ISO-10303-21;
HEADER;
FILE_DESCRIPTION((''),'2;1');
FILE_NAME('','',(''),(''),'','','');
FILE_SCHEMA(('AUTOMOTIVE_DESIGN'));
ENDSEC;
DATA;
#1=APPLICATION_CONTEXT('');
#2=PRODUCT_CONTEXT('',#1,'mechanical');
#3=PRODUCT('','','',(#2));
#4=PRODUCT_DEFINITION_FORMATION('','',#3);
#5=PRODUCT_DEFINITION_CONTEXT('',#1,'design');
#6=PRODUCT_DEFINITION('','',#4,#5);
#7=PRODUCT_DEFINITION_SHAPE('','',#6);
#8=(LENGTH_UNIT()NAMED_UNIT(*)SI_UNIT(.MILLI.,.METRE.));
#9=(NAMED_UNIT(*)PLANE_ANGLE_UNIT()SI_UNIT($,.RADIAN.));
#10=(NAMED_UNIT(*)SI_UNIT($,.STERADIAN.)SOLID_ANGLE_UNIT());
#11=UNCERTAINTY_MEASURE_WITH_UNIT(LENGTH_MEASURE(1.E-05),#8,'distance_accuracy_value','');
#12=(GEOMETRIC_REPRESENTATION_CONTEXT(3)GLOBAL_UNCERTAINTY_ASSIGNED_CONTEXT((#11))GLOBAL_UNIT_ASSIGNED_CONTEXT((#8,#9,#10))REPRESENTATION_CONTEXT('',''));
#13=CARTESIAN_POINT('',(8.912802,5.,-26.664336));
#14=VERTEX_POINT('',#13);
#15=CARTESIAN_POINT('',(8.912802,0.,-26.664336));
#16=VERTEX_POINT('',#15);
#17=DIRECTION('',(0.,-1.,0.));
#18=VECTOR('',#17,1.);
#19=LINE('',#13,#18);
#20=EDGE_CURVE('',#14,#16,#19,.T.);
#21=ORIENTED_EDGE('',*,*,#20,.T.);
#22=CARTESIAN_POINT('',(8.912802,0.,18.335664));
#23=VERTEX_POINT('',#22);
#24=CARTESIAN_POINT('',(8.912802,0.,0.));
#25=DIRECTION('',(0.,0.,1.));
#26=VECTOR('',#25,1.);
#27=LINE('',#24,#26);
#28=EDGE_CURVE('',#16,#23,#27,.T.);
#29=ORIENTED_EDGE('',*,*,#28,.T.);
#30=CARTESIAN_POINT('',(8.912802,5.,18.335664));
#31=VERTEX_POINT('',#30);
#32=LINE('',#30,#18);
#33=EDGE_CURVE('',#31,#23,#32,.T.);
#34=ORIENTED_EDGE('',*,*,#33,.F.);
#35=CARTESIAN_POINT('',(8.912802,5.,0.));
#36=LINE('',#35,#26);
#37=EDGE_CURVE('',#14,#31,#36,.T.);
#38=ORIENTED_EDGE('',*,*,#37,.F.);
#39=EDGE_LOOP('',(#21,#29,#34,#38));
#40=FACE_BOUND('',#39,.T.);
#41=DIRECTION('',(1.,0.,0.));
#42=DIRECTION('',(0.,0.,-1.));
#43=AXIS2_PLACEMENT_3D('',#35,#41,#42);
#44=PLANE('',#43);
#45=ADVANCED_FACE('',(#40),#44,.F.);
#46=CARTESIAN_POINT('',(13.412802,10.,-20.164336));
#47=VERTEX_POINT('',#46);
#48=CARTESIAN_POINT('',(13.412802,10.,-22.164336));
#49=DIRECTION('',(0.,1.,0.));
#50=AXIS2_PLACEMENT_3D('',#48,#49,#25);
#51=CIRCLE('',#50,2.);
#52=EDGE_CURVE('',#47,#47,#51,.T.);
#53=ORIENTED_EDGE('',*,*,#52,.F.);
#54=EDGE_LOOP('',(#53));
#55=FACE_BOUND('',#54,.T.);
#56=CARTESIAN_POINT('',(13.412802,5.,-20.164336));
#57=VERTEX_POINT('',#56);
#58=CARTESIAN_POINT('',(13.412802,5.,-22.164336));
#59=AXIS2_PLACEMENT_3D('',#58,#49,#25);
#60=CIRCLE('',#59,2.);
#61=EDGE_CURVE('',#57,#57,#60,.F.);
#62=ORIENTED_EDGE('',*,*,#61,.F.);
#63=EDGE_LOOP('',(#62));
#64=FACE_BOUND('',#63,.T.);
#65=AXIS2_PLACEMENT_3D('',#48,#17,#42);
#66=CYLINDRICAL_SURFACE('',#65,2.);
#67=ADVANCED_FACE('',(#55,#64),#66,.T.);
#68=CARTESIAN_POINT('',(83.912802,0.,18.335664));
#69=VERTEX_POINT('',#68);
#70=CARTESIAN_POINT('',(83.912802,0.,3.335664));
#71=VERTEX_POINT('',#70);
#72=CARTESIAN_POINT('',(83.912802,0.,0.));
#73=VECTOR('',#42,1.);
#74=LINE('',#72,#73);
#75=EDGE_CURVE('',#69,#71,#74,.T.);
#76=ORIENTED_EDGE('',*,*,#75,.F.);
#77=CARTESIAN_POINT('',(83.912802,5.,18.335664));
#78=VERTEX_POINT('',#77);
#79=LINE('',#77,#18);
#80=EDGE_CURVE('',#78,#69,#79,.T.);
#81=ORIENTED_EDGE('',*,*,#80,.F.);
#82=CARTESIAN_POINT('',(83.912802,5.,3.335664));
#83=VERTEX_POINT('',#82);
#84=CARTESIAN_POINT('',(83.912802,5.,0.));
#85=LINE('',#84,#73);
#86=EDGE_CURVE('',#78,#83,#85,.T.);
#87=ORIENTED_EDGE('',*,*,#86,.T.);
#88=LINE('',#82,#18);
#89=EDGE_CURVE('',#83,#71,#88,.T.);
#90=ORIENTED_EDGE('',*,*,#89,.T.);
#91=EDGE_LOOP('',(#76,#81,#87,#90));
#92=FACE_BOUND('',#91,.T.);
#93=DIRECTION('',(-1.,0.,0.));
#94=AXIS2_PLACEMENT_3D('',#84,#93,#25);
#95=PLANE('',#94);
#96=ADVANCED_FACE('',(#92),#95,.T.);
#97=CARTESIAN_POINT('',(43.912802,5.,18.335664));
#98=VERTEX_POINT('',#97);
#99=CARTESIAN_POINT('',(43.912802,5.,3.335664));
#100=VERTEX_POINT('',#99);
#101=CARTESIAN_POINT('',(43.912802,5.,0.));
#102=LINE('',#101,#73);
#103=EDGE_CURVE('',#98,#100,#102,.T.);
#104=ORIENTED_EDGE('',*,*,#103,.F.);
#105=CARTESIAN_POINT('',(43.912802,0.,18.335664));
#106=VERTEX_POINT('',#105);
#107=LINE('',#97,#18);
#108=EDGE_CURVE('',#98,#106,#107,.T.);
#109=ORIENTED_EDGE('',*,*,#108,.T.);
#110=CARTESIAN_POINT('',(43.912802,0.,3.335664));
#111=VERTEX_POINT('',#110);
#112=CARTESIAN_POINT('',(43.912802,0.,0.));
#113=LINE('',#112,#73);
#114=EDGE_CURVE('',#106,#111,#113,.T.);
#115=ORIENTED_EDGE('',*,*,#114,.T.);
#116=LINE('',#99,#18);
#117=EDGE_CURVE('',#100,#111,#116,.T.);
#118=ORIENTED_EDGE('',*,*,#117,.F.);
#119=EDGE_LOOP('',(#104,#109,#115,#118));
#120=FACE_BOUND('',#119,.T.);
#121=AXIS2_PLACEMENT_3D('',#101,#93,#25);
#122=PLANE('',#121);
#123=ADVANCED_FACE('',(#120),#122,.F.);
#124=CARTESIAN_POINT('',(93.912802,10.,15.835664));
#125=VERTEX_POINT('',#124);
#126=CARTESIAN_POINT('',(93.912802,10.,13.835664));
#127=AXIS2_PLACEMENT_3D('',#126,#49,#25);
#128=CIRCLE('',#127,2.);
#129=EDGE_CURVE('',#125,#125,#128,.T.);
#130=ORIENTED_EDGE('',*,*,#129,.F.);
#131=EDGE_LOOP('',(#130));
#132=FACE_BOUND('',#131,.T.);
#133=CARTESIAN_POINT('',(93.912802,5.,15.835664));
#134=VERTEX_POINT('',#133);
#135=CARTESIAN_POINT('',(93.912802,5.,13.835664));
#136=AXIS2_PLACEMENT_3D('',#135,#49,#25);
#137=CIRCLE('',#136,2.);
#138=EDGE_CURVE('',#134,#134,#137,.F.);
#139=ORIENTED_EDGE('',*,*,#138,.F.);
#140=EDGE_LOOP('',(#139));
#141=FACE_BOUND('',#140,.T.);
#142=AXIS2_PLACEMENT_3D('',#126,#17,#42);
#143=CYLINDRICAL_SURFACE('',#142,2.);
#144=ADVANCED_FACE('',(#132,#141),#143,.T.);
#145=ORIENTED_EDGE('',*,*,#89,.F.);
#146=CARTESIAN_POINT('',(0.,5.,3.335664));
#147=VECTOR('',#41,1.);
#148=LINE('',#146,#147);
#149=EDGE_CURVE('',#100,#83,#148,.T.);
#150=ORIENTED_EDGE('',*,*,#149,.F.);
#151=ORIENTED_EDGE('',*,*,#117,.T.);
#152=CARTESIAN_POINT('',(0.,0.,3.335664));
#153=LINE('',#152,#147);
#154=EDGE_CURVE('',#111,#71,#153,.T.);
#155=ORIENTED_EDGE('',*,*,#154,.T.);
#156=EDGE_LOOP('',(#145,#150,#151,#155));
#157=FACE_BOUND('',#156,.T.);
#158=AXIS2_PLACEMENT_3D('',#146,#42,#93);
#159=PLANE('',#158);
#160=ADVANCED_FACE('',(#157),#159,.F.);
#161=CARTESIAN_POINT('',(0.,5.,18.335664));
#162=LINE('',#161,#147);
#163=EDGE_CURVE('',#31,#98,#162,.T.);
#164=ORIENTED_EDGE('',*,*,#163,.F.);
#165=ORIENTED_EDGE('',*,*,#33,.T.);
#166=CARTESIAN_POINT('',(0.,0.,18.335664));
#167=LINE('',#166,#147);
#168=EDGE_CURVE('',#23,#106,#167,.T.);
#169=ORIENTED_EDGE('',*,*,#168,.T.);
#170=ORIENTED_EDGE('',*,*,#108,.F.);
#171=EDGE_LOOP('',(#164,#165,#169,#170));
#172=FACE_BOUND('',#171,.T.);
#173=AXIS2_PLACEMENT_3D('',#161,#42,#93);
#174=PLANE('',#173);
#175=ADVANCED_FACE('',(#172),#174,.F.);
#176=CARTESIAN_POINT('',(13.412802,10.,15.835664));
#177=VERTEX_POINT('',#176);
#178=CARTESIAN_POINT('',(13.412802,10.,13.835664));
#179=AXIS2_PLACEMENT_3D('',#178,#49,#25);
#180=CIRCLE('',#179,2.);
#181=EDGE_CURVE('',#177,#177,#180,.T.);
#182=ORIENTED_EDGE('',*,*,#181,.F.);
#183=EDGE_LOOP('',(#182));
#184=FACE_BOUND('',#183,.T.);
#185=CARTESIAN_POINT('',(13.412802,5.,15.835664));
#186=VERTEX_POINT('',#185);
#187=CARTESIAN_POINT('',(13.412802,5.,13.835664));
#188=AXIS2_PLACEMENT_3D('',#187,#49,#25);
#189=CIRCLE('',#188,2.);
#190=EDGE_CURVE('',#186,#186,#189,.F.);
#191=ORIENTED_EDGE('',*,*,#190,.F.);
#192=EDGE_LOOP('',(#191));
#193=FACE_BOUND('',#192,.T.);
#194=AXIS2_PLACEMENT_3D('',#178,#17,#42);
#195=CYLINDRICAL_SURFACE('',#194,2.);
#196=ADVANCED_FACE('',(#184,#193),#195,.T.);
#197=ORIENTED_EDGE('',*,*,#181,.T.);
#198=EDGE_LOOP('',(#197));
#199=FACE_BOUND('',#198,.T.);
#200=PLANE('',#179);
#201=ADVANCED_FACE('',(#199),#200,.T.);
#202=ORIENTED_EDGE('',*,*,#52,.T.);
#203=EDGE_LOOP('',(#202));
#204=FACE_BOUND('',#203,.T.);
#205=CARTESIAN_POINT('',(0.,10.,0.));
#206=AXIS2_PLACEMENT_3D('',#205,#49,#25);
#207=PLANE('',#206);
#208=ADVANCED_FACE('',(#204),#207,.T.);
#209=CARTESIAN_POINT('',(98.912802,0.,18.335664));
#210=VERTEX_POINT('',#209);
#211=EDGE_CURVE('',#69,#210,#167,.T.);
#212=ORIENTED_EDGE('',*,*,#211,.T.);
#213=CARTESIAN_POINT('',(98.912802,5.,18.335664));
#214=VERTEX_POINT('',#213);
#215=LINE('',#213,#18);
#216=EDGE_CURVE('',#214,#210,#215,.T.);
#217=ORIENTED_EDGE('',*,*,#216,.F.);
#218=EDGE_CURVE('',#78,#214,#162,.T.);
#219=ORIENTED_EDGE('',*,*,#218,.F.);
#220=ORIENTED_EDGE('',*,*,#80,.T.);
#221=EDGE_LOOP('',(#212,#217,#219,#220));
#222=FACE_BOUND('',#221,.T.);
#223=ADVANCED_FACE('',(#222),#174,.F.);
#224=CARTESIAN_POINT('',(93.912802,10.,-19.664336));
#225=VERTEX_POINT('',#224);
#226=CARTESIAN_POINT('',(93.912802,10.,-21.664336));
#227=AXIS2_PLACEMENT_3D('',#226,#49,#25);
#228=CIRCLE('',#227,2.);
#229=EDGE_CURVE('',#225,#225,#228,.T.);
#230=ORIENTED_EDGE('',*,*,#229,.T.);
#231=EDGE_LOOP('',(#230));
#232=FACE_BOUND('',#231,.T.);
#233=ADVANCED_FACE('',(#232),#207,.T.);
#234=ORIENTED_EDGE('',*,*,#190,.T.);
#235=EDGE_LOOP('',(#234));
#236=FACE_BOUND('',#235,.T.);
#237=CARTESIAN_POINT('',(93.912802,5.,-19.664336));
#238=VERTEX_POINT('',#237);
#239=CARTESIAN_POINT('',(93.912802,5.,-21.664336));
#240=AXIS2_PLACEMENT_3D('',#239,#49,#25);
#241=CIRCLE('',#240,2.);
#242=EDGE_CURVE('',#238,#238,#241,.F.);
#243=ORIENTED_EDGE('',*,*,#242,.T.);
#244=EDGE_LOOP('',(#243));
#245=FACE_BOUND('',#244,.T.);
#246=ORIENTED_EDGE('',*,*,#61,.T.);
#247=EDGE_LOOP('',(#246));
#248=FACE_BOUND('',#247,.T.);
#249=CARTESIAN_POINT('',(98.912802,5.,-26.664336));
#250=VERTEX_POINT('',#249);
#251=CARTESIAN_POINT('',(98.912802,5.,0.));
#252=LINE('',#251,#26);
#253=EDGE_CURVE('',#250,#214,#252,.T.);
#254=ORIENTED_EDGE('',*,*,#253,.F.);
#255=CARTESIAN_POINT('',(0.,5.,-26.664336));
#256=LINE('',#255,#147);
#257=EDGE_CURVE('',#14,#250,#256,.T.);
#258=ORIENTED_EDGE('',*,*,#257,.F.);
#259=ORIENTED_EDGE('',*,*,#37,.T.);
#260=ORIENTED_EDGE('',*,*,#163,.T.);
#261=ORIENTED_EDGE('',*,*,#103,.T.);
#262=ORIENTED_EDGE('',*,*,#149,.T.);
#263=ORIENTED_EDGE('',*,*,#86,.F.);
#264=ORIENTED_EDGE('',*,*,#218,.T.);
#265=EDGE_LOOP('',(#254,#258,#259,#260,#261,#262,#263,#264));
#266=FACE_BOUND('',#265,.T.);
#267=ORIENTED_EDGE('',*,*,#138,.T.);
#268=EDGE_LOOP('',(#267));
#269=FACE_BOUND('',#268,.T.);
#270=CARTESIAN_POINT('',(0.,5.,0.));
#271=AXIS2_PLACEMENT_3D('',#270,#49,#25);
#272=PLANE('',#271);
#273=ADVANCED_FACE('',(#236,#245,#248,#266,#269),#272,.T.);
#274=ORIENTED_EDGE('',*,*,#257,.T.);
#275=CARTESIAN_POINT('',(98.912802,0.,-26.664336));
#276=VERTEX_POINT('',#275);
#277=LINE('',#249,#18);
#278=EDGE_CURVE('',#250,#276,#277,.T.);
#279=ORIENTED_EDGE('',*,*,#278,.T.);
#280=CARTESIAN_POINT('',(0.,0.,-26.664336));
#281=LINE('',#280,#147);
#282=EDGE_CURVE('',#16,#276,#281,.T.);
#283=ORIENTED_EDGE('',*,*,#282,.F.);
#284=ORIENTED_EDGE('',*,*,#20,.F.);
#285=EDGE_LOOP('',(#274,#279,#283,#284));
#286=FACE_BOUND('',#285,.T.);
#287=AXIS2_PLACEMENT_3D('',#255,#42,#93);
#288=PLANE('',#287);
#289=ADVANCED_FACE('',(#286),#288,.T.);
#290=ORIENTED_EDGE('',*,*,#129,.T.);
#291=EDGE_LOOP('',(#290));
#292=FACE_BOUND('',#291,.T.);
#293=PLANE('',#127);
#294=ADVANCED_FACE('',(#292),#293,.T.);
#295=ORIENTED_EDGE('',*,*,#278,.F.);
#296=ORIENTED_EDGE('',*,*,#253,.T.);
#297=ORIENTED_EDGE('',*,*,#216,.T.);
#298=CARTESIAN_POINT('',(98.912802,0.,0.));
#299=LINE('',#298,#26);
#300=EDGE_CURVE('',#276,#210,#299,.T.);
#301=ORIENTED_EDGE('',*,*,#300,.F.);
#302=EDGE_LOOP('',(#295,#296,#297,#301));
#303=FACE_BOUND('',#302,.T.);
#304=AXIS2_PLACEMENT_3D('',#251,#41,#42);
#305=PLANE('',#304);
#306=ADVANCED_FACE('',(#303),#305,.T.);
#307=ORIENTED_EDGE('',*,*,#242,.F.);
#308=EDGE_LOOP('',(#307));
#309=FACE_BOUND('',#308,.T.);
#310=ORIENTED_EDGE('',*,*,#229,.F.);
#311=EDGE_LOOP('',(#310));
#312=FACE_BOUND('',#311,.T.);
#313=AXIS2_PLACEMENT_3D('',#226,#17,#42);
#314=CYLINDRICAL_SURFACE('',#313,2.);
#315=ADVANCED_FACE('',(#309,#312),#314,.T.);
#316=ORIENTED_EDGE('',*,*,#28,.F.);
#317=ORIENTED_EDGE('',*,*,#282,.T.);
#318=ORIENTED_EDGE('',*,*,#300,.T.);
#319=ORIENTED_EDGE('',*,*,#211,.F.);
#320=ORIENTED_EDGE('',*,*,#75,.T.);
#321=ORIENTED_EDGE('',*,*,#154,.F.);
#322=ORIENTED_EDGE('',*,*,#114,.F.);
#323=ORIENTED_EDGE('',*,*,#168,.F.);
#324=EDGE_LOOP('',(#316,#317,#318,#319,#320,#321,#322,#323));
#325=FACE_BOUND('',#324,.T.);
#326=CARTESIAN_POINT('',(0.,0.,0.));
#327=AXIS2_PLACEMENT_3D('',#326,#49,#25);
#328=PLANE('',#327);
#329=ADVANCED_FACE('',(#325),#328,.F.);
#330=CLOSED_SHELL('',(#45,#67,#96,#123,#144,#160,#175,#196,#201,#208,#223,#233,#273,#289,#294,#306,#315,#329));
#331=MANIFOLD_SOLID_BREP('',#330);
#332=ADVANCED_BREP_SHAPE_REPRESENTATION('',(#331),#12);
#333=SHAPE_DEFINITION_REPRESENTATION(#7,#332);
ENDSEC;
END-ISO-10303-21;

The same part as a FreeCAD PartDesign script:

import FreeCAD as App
import Part
import Sketcher
Q = App.Units.Quantity


def add_polygon(sketch, points):
    """Adds a closed chain of lines whose ends are joined by coincident constraints."""
    first, n = sketch.GeometryCount, len(points)
    for a, b in zip(points, points[1:] + points[:1]):
        sketch.addGeometry(Part.LineSegment(App.Vector(*a, 0), App.Vector(*b, 0)), False)
    for i in range(n):
        sketch.addConstraint(Sketcher.Constraint("Coincident", first + i, 2, first + (i + 1) % n, 1))

doc = App.newDocument("Part")
body = doc.addObject("PartDesign::Body", "Body")

sketch1 = body.newObject("Sketcher::SketchObject", "Sketch")
sketch1.AttachmentSupport = (doc.getObject("XZ_Plane"), [""])
sketch1.MapMode = "FlatFace"
add_polygon(sketch1, [(99, -27), (9, -27), (9, 18), (44, 18), (44, 3), (84, 3), (84, 18), (99, 18)])
sketch1.addConstraint([
    Sketcher.Constraint("Horizontal", 0),
    Sketcher.Constraint("Vertical", 1),
    Sketcher.Constraint("Horizontal", 2),
    Sketcher.Constraint("Vertical", 3),
    Sketcher.Constraint("Horizontal", 4),
    Sketcher.Constraint("Vertical", 5),
    Sketcher.Constraint("Horizontal", 6),
    Sketcher.Constraint("Vertical", 7),
    Sketcher.Constraint("Horizontal", 2, 2, 5, 2),
    Sketcher.Constraint("Equal", 6, 3),
    Sketcher.Constraint("DistanceX", 0, 2, 0, 1, Q("90 mm")),
    Sketcher.Constraint("DistanceX", 2, 1, 2, 2, Q("35 mm")),
    Sketcher.Constraint("DistanceX", 4, 1, 4, 2, Q("40 mm")),
    Sketcher.Constraint("DistanceY", 1, 1, 1, 2, Q("45 mm")),
    Sketcher.Constraint("DistanceX", -1, 1, 0, 2, Q("8.912802 mm")),
    Sketcher.Constraint("DistanceY", 0, 2, -1, 1, Q("26.664336 mm")),
])
pad1 = body.newObject("PartDesign::Pad", "Pad")
pad1.Profile = sketch1
pad1.Length = 5
pad1.Reversed = True

sketch2 = body.newObject("Sketcher::SketchObject", "Sketch001")
sketch2.AttachmentSupport = (doc.getObject("XZ_Plane"), [""])
sketch2.MapMode = "FlatFace"
sketch2.addGeometry([
    Part.Circle(App.Vector(13.4, -22.2, 0), App.Vector(0, 0, 1), 2),
    Part.Circle(App.Vector(93.9, -21.7, 0), App.Vector(0, 0, 1), 2),
    Part.Circle(App.Vector(93.9, 13.8, 0), App.Vector(0, 0, 1), 2),
    Part.Circle(App.Vector(13.4, 13.8, 0), App.Vector(0, 0, 1), 2),
], False)
sketch2.addConstraint([
    Sketcher.Constraint("Equal", 0, 1),
    Sketcher.Constraint("Equal", 1, 2),
    Sketcher.Constraint("Equal", 2, 3),
    Sketcher.Constraint("Horizontal", 2, 3, 3, 3),
    Sketcher.Constraint("Vertical", 1, 3, 2, 3),
    Sketcher.Constraint("Vertical", 0, 3, 3, 3),
    Sketcher.Constraint("Diameter", 0, Q("4 mm")),
    Sketcher.Constraint("DistanceY", 0, 3, 2, 3, Q("36 mm")),
    Sketcher.Constraint("DistanceX", 0, 3, 1, 3, Q("80.5 mm")),
    Sketcher.Constraint("DistanceY", 0, 3, 1, 3, Q("0.5 mm")),
    Sketcher.Constraint("DistanceX", -1, 1, 0, 3, Q("13.412802 mm")),
    Sketcher.Constraint("DistanceY", 0, 3, -1, 1, Q("22.164336 mm")),
])
pad2 = body.newObject("PartDesign::Pad", "Pad001")
pad2.Profile = sketch2
pad2.Length = 10
pad2.Reversed = True

doc.recompute()
